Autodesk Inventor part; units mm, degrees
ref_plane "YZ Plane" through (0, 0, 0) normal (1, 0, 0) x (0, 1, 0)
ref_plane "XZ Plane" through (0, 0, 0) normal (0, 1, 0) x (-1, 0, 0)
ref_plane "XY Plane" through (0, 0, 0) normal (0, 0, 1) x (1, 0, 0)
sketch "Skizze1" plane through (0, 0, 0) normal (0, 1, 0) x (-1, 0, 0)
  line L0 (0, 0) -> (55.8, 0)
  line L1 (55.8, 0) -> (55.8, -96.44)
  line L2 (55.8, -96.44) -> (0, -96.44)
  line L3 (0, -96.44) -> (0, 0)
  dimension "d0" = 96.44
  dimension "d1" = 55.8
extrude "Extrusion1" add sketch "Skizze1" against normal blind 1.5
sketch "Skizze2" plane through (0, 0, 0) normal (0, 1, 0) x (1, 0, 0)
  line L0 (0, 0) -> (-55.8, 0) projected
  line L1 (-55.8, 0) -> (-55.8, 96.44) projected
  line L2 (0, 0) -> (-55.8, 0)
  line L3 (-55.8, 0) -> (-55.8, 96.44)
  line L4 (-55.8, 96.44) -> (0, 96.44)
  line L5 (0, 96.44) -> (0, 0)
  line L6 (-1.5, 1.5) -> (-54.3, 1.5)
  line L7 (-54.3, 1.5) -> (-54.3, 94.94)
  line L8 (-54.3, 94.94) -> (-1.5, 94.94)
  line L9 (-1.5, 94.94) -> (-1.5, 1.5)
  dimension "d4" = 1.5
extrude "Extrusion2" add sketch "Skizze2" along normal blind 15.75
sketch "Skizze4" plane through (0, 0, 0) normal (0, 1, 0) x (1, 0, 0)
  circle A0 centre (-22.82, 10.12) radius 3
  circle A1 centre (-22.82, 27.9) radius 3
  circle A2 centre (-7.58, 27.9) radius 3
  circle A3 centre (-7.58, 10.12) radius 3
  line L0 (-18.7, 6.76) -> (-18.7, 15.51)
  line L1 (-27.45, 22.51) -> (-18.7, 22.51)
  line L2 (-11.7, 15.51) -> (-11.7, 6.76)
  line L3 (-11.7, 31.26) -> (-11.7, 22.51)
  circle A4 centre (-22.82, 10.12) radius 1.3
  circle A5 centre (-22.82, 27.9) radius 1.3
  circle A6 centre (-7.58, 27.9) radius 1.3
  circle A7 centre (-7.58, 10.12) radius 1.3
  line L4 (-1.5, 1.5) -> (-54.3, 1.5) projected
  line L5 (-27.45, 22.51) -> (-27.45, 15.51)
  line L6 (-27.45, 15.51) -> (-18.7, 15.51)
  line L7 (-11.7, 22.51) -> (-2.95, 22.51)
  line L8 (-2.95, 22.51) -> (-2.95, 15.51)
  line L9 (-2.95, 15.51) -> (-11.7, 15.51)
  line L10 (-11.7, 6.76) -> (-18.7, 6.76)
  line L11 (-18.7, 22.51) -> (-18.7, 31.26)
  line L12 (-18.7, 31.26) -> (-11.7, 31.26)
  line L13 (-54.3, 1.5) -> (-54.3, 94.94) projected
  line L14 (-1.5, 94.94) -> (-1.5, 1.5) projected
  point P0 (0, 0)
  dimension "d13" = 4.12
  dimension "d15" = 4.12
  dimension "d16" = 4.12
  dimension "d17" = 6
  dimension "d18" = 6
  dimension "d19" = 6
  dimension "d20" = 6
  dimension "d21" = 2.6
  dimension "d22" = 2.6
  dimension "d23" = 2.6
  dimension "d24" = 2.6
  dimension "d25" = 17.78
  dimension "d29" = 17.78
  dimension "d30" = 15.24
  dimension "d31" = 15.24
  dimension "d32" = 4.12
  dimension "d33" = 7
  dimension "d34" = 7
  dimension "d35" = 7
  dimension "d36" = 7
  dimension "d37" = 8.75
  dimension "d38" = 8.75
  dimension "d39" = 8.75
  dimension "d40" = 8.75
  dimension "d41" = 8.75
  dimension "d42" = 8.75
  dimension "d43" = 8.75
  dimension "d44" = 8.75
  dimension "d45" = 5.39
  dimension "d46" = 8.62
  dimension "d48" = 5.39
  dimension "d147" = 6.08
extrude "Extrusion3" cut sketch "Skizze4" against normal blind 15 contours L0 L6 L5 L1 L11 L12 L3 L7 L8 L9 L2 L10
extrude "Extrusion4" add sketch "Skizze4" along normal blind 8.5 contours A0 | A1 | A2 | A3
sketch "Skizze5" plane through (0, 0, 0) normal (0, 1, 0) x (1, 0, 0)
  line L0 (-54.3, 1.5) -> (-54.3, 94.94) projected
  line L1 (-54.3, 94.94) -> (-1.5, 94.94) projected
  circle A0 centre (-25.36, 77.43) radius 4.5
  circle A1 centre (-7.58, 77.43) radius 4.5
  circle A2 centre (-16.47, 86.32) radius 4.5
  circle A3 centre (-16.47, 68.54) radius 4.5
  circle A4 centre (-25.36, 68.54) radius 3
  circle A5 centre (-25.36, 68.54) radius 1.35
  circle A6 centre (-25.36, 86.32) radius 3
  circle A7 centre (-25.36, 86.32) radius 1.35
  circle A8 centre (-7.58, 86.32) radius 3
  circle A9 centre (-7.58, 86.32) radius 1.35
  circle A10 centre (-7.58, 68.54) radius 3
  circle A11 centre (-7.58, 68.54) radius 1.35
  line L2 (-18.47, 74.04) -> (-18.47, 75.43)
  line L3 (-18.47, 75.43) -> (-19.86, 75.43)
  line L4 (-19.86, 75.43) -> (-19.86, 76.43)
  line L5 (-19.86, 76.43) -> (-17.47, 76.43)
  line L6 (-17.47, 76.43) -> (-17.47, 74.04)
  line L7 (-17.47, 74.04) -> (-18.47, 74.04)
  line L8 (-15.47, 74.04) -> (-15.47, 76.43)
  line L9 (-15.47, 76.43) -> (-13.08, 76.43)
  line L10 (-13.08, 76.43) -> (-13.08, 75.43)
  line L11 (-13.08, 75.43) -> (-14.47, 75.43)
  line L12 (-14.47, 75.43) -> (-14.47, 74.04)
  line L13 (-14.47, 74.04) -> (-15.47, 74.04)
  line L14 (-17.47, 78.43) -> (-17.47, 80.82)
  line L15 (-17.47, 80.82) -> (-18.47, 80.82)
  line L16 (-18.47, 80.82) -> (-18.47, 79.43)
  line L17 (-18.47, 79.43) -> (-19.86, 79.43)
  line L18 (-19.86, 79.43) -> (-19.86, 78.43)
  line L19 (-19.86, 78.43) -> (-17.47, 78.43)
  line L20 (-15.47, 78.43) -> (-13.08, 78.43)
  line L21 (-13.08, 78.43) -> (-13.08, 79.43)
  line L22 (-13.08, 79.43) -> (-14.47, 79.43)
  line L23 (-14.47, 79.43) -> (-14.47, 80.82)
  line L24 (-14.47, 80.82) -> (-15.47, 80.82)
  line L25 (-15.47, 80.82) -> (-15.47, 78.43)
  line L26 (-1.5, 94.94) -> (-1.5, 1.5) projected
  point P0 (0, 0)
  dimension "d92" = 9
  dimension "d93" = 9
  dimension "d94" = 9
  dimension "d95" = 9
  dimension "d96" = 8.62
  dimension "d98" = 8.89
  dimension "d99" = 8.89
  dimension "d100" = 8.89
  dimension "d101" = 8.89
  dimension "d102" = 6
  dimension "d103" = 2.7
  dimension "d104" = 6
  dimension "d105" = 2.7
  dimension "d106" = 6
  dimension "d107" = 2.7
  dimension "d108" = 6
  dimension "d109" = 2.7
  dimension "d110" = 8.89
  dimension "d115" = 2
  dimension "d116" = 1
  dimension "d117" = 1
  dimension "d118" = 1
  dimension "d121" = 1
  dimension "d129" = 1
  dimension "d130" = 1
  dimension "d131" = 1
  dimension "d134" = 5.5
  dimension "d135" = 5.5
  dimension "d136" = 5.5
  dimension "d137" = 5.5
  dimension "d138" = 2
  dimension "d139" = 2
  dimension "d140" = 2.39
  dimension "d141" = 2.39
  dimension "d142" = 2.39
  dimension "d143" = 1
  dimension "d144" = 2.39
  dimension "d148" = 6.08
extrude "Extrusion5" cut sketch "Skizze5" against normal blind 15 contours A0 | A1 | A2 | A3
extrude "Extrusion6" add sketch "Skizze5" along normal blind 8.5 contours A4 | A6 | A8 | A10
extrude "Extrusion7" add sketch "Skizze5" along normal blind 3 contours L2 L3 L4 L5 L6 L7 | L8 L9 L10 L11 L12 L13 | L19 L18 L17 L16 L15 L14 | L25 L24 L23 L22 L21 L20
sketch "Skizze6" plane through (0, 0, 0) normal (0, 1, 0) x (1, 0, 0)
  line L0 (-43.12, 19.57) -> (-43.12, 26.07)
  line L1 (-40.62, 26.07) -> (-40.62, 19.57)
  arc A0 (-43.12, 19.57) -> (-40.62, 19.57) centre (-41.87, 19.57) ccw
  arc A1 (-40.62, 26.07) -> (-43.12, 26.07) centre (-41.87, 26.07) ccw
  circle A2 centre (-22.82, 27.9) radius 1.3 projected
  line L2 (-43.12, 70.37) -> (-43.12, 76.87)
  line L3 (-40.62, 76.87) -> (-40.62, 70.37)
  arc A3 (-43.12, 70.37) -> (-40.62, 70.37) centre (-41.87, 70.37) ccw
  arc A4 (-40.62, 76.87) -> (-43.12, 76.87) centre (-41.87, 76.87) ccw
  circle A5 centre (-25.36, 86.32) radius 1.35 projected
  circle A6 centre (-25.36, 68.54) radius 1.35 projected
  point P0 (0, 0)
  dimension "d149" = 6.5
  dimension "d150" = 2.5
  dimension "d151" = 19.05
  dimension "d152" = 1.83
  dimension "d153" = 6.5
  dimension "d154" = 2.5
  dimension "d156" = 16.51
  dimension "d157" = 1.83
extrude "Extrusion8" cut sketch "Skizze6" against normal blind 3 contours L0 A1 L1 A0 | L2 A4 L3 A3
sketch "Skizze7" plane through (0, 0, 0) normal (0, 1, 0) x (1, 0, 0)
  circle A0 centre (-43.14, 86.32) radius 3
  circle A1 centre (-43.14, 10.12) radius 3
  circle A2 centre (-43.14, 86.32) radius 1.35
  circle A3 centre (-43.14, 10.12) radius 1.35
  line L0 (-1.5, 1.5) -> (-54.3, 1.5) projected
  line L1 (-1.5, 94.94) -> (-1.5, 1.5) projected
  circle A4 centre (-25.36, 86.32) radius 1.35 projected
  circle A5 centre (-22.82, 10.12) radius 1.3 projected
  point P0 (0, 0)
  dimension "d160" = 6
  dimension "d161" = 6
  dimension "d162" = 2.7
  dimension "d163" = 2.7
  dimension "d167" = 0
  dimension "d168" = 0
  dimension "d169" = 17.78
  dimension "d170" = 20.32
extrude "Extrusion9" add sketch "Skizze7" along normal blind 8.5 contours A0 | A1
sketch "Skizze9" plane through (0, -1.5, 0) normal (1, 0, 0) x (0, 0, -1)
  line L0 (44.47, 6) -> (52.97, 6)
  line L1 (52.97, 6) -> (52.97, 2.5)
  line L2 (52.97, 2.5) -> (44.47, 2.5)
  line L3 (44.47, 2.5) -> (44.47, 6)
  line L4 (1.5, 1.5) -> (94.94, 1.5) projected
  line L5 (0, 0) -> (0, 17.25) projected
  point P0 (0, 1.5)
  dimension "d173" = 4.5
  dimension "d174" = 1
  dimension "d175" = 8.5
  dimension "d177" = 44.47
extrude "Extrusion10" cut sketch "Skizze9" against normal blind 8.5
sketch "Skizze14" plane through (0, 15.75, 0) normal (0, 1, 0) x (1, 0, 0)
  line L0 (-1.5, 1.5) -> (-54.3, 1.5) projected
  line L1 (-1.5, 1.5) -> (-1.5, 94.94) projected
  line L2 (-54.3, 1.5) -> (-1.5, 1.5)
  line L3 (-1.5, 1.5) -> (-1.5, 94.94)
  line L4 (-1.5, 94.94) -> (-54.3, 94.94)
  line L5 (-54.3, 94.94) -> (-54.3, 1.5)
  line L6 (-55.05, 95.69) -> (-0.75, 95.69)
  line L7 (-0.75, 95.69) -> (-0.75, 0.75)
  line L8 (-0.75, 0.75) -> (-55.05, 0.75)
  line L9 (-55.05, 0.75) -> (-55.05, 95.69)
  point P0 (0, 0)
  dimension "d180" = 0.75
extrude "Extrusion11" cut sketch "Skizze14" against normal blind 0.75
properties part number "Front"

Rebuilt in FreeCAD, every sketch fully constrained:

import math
import FreeCAD as App
import Part
import Sketcher
from FreeCAD import Vector


def add_polygon(sketch, points):
    """Adds a closed chain of lines whose ends are joined by coincident constraints."""
    first, n = sketch.GeometryCount, len(points)
    for a, b in zip(points, points[1:] + points[:1]):
        sketch.addGeometry(Part.LineSegment(App.Vector(*a, 0), App.Vector(*b, 0)), False)
    for i in range(n):
        sketch.addConstraint(Sketcher.Constraint("Coincident", first + i, 2, first + (i + 1) % n, 1))

doc = App.newDocument("Part")
params = doc.addObject("Spreadsheet::Sheet", "Params")
for row, (alias, value) in enumerate([
    ("sketch1_width", "55.8 mm"),
    ("sketch1_height", "96.44 mm"),
    ("pad1_length", "1.5 mm"),
    ("sketch2_width", "55.8 mm"),
    ("sketch2_height", "96.44 mm"),
    ("pad2_length", "15.75 mm"),
    ("sketch3_width", "7 mm"),
    ("sketch3_width2", "8.75 mm"),
    ("pocket1_length", "15 mm"),
    ("sketch4_diameter", "6 mm"),
    ("sketch4_diameter2", "2.6 mm"),
    ("pad3_length", "8.5 mm"),
    ("sketch5_diameter", "9 mm"),
    ("pocket2_length", "15 mm"),
    ("sketch6_diameter", "6 mm"),
    ("sketch6_diameter2", "2.7 mm"),
    ("pad4_length", "8.5 mm"),
    ("sketch7_width", "1 mm"),
    ("sketch7_width2", "2.39 mm"),
    ("pad5_length", "3 mm"),
    ("sketch8_radius", "1.25 mm"),
    ("sketch8_height", "6.5 mm"),
    ("pocket3_length", "3 mm"),
    ("sketch9_diameter", "6 mm"),
    ("sketch9_diameter2", "2.7 mm"),
    ("pad6_length", "8.5 mm"),
    ("sketch10_height", "8.5 mm"),
    ("pocket4_length", "8.5 mm"),
    ("sketch11_width", "54.3 mm"),
    ("sketch11_height", "94.94 mm"),
    ("pocket5_length", "0.75 mm"),
], start=1):
    params.set(f"A{row}", alias)
    params.set(f"B{row}", "=" + value)
    params.setAlias(f"B{row}", alias)

body = doc.addObject("PartDesign::Body", "Body")

# Sketch on XZ plane
sketch1 = doc.addObject("Sketcher::SketchObject", "Sketch")
body.addObject(sketch1)
sketch1.AttachmentSupport = (doc.XZ_Plane, [""])
sketch1.MapMode = "FlatFace"
add_polygon(sketch1, [(-56, 0), (0, 0), (0, -96), (-56, -96)])  # lines 0-3
sketch1.addConstraint(Sketcher.Constraint("Horizontal", 0))
sketch1.addConstraint(Sketcher.Constraint("Vertical", 1))
sketch1.addConstraint(Sketcher.Constraint("Horizontal", 2))
sketch1.addConstraint(Sketcher.Constraint("Vertical", 3))
sketch1.addConstraint(Sketcher.Constraint("Coincident", 0, 2, -1, 1))
sketch1.addConstraint(Sketcher.Constraint("DistanceX", 0, 1, 0, 2, 55.8))
sketch1.addConstraint(Sketcher.Constraint("DistanceY", 1, 2, 1, 1, 96.44))
sketch1.setExpression("Constraints[9]", "Params.sketch1_width")
sketch1.setExpression("Constraints[10]", "Params.sketch1_height")
pad1 = doc.addObject("PartDesign::Pad", "Pad")
body.addObject(pad1)
pad1.Profile = sketch1
pad1.setExpression("Length", "Params.pad1_length")

# Sketch on XZ plane
sketch2 = doc.addObject("Sketcher::SketchObject", "Sketch001")
body.addObject(sketch2)
sketch2.AttachmentSupport = (doc.XZ_Plane, [""])
sketch2.MapMode = "FlatFace"
add_polygon(sketch2, [(-56, 0), (0, 0), (0, -96), (-56, -96)])  # lines 0-3
add_polygon(sketch2, [(-2, -95), (-2, -2), (-54, -2), (-54, -95)])  # lines 4-7
sketch2.addConstraint(Sketcher.Constraint("Horizontal", 0))
sketch2.addConstraint(Sketcher.Constraint("Vertical", 1))
sketch2.addConstraint(Sketcher.Constraint("Horizontal", 2))
sketch2.addConstraint(Sketcher.Constraint("Vertical", 3))
sketch2.addConstraint(Sketcher.Constraint("Vertical", 4))
sketch2.addConstraint(Sketcher.Constraint("Horizontal", 5))
sketch2.addConstraint(Sketcher.Constraint("Vertical", 6))
sketch2.addConstraint(Sketcher.Constraint("Horizontal", 7))
sketch2.addConstraint(Sketcher.Constraint("Coincident", 0, 2, -1, 1))
sketch2.addConstraint(Sketcher.Constraint("DistanceX", 4, 2, -1, 1, 1.5))
sketch2.addConstraint(Sketcher.Constraint("DistanceY", 4, 2, -1, 1, 1.5))
sketch2.addConstraint(Sketcher.Constraint("DistanceX", 3, 2, 5, 2, 1.5))
sketch2.addConstraint(Sketcher.Constraint("DistanceY", 2, 2, 6, 2, 1.5))
sketch2.addConstraint(Sketcher.Constraint("DistanceX", 0, 1, 0, 2, 55.8))
sketch2.addConstraint(Sketcher.Constraint("DistanceY", 1, 2, 1, 1, 96.44))
sketch2.setExpression("Constraints[21]", "Params.sketch2_width")
sketch2.setExpression("Constraints[22]", "Params.sketch2_height")
pad2 = doc.addObject("PartDesign::Pad", "Pad001")
body.addObject(pad2)
pad2.Profile = sketch2
pad2.setExpression("Length", "Params.pad2_length")
pad2.Reversed = True

# Sketch on XZ plane
sketch3 = doc.addObject("Sketcher::SketchObject", "Sketch002")
body.addObject(sketch3)
sketch3.AttachmentSupport = (doc.XZ_Plane, [""])
sketch3.MapMode = "FlatFace"
add_polygon(sketch3, [(-19, -16), (-19, -7), (-12, -7), (-12, -16), (-3, -16), (-3, -23), (-12, -23), (-12, -31), (-19, -31), (-19, -23), (-27, -23), (-27, -16)])  # lines 0-11
sketch3.addConstraint(Sketcher.Constraint("Vertical", 0))
sketch3.addConstraint(Sketcher.Constraint("Horizontal", 1))
sketch3.addConstraint(Sketcher.Constraint("Vertical", 2))
sketch3.addConstraint(Sketcher.Constraint("Horizontal", 3))
sketch3.addConstraint(Sketcher.Constraint("Vertical", 4))
sketch3.addConstraint(Sketcher.Constraint("Horizontal", 5))
sketch3.addConstraint(Sketcher.Constraint("Vertical", 6))
sketch3.addConstraint(Sketcher.Constraint("Horizontal", 7))
sketch3.addConstraint(Sketcher.Constraint("Vertical", 8))
sketch3.addConstraint(Sketcher.Constraint("Horizontal", 9))
sketch3.addConstraint(Sketcher.Constraint("Vertical", 10))
sketch3.addConstraint(Sketcher.Constraint("Horizontal", 11))
sketch3.addConstraint(Sketcher.Constraint("Horizontal", 5, 2, 8, 2))
sketch3.addConstraint(Sketcher.Constraint("Horizontal", 3, 2, 10, 2))
sketch3.addConstraint(Sketcher.Constraint("Vertical", 2, 2, 5, 2))
sketch3.addConstraint(Sketcher.Constraint("Vertical", 0, 2, 7, 2))
sketch3.addConstraint(Sketcher.Constraint("Equal", 5, 9))
sketch3.addConstraint(Sketcher.Constraint("Equal", 11, 0))
sketch3.addConstraint(Sketcher.Constraint("Equal", 7, 4))
sketch3.addConstraint(Sketcher.Constraint("Equal", 2, 6))
sketch3.addConstraint(Sketcher.Constraint("DistanceX", 1, 1, 1, 2, 7.0))
sketch3.addConstraint(Sketcher.Constraint("DistanceX", 3, 1, 3, 2, 8.75))
sketch3.addConstraint(Sketcher.Constraint("DistanceX", 0, 2, -1, 1, 18.7))
sketch3.addConstraint(Sketcher.Constraint("DistanceY", 0, 2, -1, 1, 6.76))
sketch3.setExpression("Constraints[32]", "Params.sketch3_width")
sketch3.setExpression("Constraints[33]", "Params.sketch3_width2")
pocket1 = doc.addObject("PartDesign::Pocket", "Pocket")
body.addObject(pocket1)
pocket1.Profile = sketch3
pocket1.setExpression("Length", "Params.pocket1_length")
pocket1.Reversed = True

# Sketch on XZ plane
sketch4 = doc.addObject("Sketcher::SketchObject", "Sketch003")
body.addObject(sketch4)
sketch4.AttachmentSupport = (doc.XZ_Plane, [""])
sketch4.MapMode = "FlatFace"
sketch4.addGeometry(Part.Circle(Vector(-22.8, -10.1, 0), Vector(0, 0, 1), 3), False)
sketch4.addGeometry(Part.Circle(Vector(-22.8, -10.1, 0), Vector(0, 0, 1), 1.3), False)
sketch4.addGeometry(Part.Circle(Vector(-22.8, -27.9, 0), Vector(0, 0, 1), 3), False)
sketch4.addGeometry(Part.Circle(Vector(-22.8, -27.9, 0), Vector(0, 0, 1), 1.3), False)
sketch4.addGeometry(Part.Circle(Vector(-7.6, -27.9, 0), Vector(0, 0, 1), 3), False)
sketch4.addGeometry(Part.Circle(Vector(-7.6, -27.9, 0), Vector(0, 0, 1), 1.3), False)
sketch4.addGeometry(Part.Circle(Vector(-7.6, -10.1, 0), Vector(0, 0, 1), 3), False)
sketch4.addGeometry(Part.Circle(Vector(-7.6, -10.1, 0), Vector(0, 0, 1), 1.3), False)
sketch4.addConstraint(Sketcher.Constraint("Coincident", 1, 3, 0, 3))
sketch4.addConstraint(Sketcher.Constraint("Coincident", 3, 3, 2, 3))
sketch4.addConstraint(Sketcher.Constraint("Coincident", 5, 3, 4, 3))
sketch4.addConstraint(Sketcher.Constraint("Coincident", 7, 3, 6, 3))
sketch4.addConstraint(Sketcher.Constraint("Equal", 0, 2))
sketch4.addConstraint(Sketcher.Constraint("Equal", 1, 3))
sketch4.addConstraint(Sketcher.Constraint("Equal", 2, 4))
sketch4.addConstraint(Sketcher.Constraint("Equal", 3, 5))
sketch4.addConstraint(Sketcher.Constraint("Equal", 4, 6))
sketch4.addConstraint(Sketcher.Constraint("Equal", 5, 7))
sketch4.addConstraint(Sketcher.Constraint("Horizontal", 3, 3, 4, 3))
sketch4.addConstraint(Sketcher.Constraint("Horizontal", 1, 3, 6, 3))
sketch4.addConstraint(Sketcher.Constraint("Vertical", 1, 3, 2, 3))
sketch4.addConstraint(Sketcher.Constraint("Vertical", 5, 3, 6, 3))
sketch4.addConstraint(Sketcher.Constraint("Diameter", 0, 6.0))
sketch4.addConstraint(Sketcher.Constraint("Diameter", 1, 2.6))
sketch4.addConstraint(Sketcher.Constraint("DistanceY", 2, 3, 0, 3, 17.78))
sketch4.addConstraint(Sketcher.Constraint("DistanceX", 2, 3, 4, 3, 15.24))
sketch4.addConstraint(Sketcher.Constraint("DistanceY", 2, 3, -1, 1, 27.9))
sketch4.addConstraint(Sketcher.Constraint("DistanceX", 0, 3, -1, 1, 22.82))
sketch4.setExpression("Constraints[14]", "Params.sketch4_diameter")
sketch4.setExpression("Constraints[15]", "Params.sketch4_diameter2")
pad3 = doc.addObject("PartDesign::Pad", "Pad002")
body.addObject(pad3)
pad3.Profile = sketch4
pad3.setExpression("Length", "Params.pad3_length")
pad3.Reversed = True

# Sketch on XZ plane
sketch5 = doc.addObject("Sketcher::SketchObject", "Sketch004")
body.addObject(sketch5)
sketch5.AttachmentSupport = (doc.XZ_Plane, [""])
sketch5.MapMode = "FlatFace"
sketch5.addGeometry(Part.Circle(Vector(-25.4, -77.4, 0), Vector(0, 0, 1), 4.5), False)
sketch5.addGeometry(Part.Circle(Vector(-7.6, -77.4, 0), Vector(0, 0, 1), 4.5), False)
sketch5.addGeometry(Part.Circle(Vector(-16.5, -86.3, 0), Vector(0, 0, 1), 4.5), False)
sketch5.addGeometry(Part.Circle(Vector(-16.5, -68.5, 0), Vector(0, 0, 1), 4.5), False)
sketch5.addConstraint(Sketcher.Constraint("Equal", 0, 1))
sketch5.addConstraint(Sketcher.Constraint("Equal", 1, 2))
sketch5.addConstraint(Sketcher.Constraint("Equal", 2, 3))
sketch5.addConstraint(Sketcher.Constraint("Horizontal", 0, 3, 1, 3))
sketch5.addConstraint(Sketcher.Constraint("Vertical", 2, 3, 3, 3))
sketch5.addConstraint(Sketcher.Constraint("Diameter", 0, 9.0))
sketch5.addConstraint(Sketcher.Constraint("DistanceX", 2, 3, 1, 3, 8.89))
sketch5.addConstraint(Sketcher.Constraint("DistanceY", 2, 3, 1, 3, 8.89))
sketch5.addConstraint(Sketcher.Constraint("DistanceX", 0, 3, 2, 3, 8.89))
sketch5.addConstraint(Sketcher.Constraint("DistanceY", 0, 3, 3, 3, 8.89))
sketch5.addConstraint(Sketcher.Constraint("DistanceX", 0, 3, -1, 1, 25.36))
sketch5.addConstraint(Sketcher.Constraint("DistanceY", 0, 3, -1, 1, 77.43))
sketch5.setExpression("Constraints[5]", "Params.sketch5_diameter")
pocket2 = doc.addObject("PartDesign::Pocket", "Pocket001")
body.addObject(pocket2)
pocket2.Profile = sketch5
pocket2.setExpression("Length", "Params.pocket2_length")
pocket2.Reversed = True

# Sketch on XZ plane
sketch6 = doc.addObject("Sketcher::SketchObject", "Sketch005")
body.addObject(sketch6)
sketch6.AttachmentSupport = (doc.XZ_Plane, [""])
sketch6.MapMode = "FlatFace"
sketch6.addGeometry(Part.Circle(Vector(-25.4, -68.5, 0), Vector(0, 0, 1), 3), False)
sketch6.addGeometry(Part.Circle(Vector(-25.4, -68.5, 0), Vector(0, 0, 1), 1.4), False)
sketch6.addGeometry(Part.Circle(Vector(-25.4, -86.3, 0), Vector(0, 0, 1), 3), False)
sketch6.addGeometry(Part.Circle(Vector(-25.4, -86.3, 0), Vector(0, 0, 1), 1.4), False)
sketch6.addGeometry(Part.Circle(Vector(-7.6, -86.3, 0), Vector(0, 0, 1), 3), False)
sketch6.addGeometry(Part.Circle(Vector(-7.6, -86.3, 0), Vector(0, 0, 1), 1.4), False)
sketch6.addGeometry(Part.Circle(Vector(-7.6, -68.5, 0), Vector(0, 0, 1), 3), False)
sketch6.addGeometry(Part.Circle(Vector(-7.6, -68.5, 0), Vector(0, 0, 1), 1.4), False)
sketch6.addConstraint(Sketcher.Constraint("Coincident", 1, 3, 0, 3))
sketch6.addConstraint(Sketcher.Constraint("Coincident", 3, 3, 2, 3))
sketch6.addConstraint(Sketcher.Constraint("Coincident", 5, 3, 4, 3))
sketch6.addConstraint(Sketcher.Constraint("Coincident", 7, 3, 6, 3))
sketch6.addConstraint(Sketcher.Constraint("Equal", 0, 2))
sketch6.addConstraint(Sketcher.Constraint("Equal", 1, 3))
sketch6.addConstraint(Sketcher.Constraint("Equal", 2, 4))
sketch6.addConstraint(Sketcher.Constraint("Equal", 3, 5))
sketch6.addConstraint(Sketcher.Constraint("Equal", 4, 6))
sketch6.addConstraint(Sketcher.Constraint("Equal", 5, 7))
sketch6.addConstraint(Sketcher.Constraint("Horizontal", 3, 3, 4, 3))
sketch6.addConstraint(Sketcher.Constraint("Horizontal", 1, 3, 6, 3))
sketch6.addConstraint(Sketcher.Constraint("Vertical", 1, 3, 2, 3))
sketch6.addConstraint(Sketcher.Constraint("Vertical", 5, 3, 6, 3))
sketch6.addConstraint(Sketcher.Constraint("Diameter", 0, 6.0))
sketch6.addConstraint(Sketcher.Constraint("Diameter", 1, 2.7))
sketch6.addConstraint(Sketcher.Constraint("DistanceX", 0, 3, -1, 1, 25.36))
sketch6.addConstraint(Sketcher.Constraint("DistanceY", 0, 3, -1, 1, 68.54))
sketch6.addConstraint(Sketcher.Constraint("DistanceY", 2, 3, -1, 1, 86.32))
sketch6.addConstraint(Sketcher.Constraint("DistanceX", 4, 3, -1, 1, 7.58))
sketch6.setExpression("Constraints[14]", "Params.sketch6_diameter")
sketch6.setExpression("Constraints[15]", "Params.sketch6_diameter2")
pad4 = doc.addObject("PartDesign::Pad", "Pad003")
body.addObject(pad4)
pad4.Profile = sketch6
pad4.setExpression("Length", "Params.pad4_length")
pad4.Reversed = True

# Sketch on XZ plane
sketch7 = doc.addObject("Sketcher::SketchObject", "Sketch006")
body.addObject(sketch7)
sketch7.AttachmentSupport = (doc.XZ_Plane, [""])
sketch7.MapMode = "FlatFace"
add_polygon(sketch7, [(-18.5, -75.4), (-18.5, -74), (-17.5, -74), (-17.5, -76.4), (-19.9, -76.4), (-19.9, -75.4)])  # lines 0-5
add_polygon(sketch7, [(-15.5, -76.4), (-15.5, -74), (-14.5, -74), (-14.5, -75.4), (-13.1, -75.4), (-13.1, -76.4)])  # lines 6-11
add_polygon(sketch7, [(-19.9, -78.4), (-17.5, -78.4), (-17.5, -80.8), (-18.5, -80.8), (-18.5, -79.4), (-19.9, -79.4)])  # lines 12-17
add_polygon(sketch7, [(-15.5, -80.8), (-15.5, -78.4), (-13.1, -78.4), (-13.1, -79.4), (-14.5, -79.4), (-14.5, -80.8)])  # lines 18-23
sketch7.addConstraint(Sketcher.Constraint("Vertical", 0))
sketch7.addConstraint(Sketcher.Constraint("Horizontal", 1))
sketch7.addConstraint(Sketcher.Constraint("Vertical", 2))
sketch7.addConstraint(Sketcher.Constraint("Horizontal", 3))
sketch7.addConstraint(Sketcher.Constraint("Vertical", 4))
sketch7.addConstraint(Sketcher.Constraint("Horizontal", 5))
sketch7.addConstraint(Sketcher.Constraint("Vertical", 6))
sketch7.addConstraint(Sketcher.Constraint("Horizontal", 7))
sketch7.addConstraint(Sketcher.Constraint("Vertical", 8))
sketch7.addConstraint(Sketcher.Constraint("Horizontal", 9))
sketch7.addConstraint(Sketcher.Constraint("Vertical", 10))
sketch7.addConstraint(Sketcher.Constraint("Horizontal", 11))
sketch7.addConstraint(Sketcher.Constraint("Horizontal", 12))
sketch7.addConstraint(Sketcher.Constraint("Vertical", 13))
sketch7.addConstraint(Sketcher.Constraint("Horizontal", 14))
sketch7.addConstraint(Sketcher.Constraint("Vertical", 15))
sketch7.addConstraint(Sketcher.Constraint("Horizontal", 16))
sketch7.addConstraint(Sketcher.Constraint("Vertical", 17))
sketch7.addConstraint(Sketcher.Constraint("Vertical", 18))
sketch7.addConstraint(Sketcher.Constraint("Horizontal", 19))
sketch7.addConstraint(Sketcher.Constraint("Vertical", 20))
sketch7.addConstraint(Sketcher.Constraint("Horizontal", 21))
sketch7.addConstraint(Sketcher.Constraint("Vertical", 22))
sketch7.addConstraint(Sketcher.Constraint("Horizontal", 23))
sketch7.addConstraint(Sketcher.Constraint("Horizontal", 1, 2, 6, 2))
sketch7.addConstraint(Sketcher.Constraint("Horizontal", 5, 2, 8, 2))
sketch7.addConstraint(Sketcher.Constraint("Horizontal", 3, 2, 10, 2))
sketch7.addConstraint(Sketcher.Constraint("Horizontal", 17, 2, 18, 2))
sketch7.addConstraint(Sketcher.Constraint("Horizontal", 16, 2, 20, 2))
sketch7.addConstraint(Sketcher.Constraint("Horizontal", 14, 2, 22, 2))
sketch7.addConstraint(Sketcher.Constraint("Vertical", 2, 2, 12, 2))
sketch7.addConstraint(Sketcher.Constraint("Vertical", 5, 2, 14, 2))
sketch7.addConstraint(Sketcher.Constraint("Vertical", 4, 2, 16, 2))
sketch7.addConstraint(Sketcher.Constraint("Vertical", 11, 2, 18, 2))
sketch7.addConstraint(Sketcher.Constraint("Vertical", 10, 2, 19, 2))
sketch7.addConstraint(Sketcher.Constraint("Vertical", 8, 2, 21, 2))
sketch7.addConstraint(Sketcher.Constraint("Equal", 1, 7))
sketch7.addConstraint(Sketcher.Constraint("Equal", 5, 9))
sketch7.addConstraint(Sketcher.Constraint("Equal", 21, 0))
sketch7.addConstraint(Sketcher.Constraint("Equal", 19, 2))
sketch7.addConstraint(Sketcher.Constraint("Equal", 6, 13))
sketch7.addConstraint(Sketcher.Constraint("Equal", 8, 15))
sketch7.addConstraint(Sketcher.Constraint("DistanceX", 1, 1, 1, 2, 1.0))
sketch7.addConstraint(Sketcher.Constraint("DistanceX", 1, 2, 6, 2, 2.0))
sketch7.addConstraint(Sketcher.Constraint("DistanceY", 12, 2, 2, 2, 2.0))
sketch7.addConstraint(Sketcher.Constraint("DistanceX", 3, 2, 3, 1, 2.39))
sketch7.addConstraint(Sketcher.Constraint("DistanceX", 0, 2, -1, 1, 18.47))
sketch7.addConstraint(Sketcher.Constraint("DistanceY", 0, 2, -1, 1, 74.04))
sketch7.setExpression("Constraints[66]", "Params.sketch7_width")
sketch7.setExpression("Constraints[69]", "Params.sketch7_width2")
pad5 = doc.addObject("PartDesign::Pad", "Pad004")
body.addObject(pad5)
pad5.Profile = sketch7
pad5.setExpression("Length", "Params.pad5_length")
pad5.Reversed = True

# Sketch on XZ plane
sketch8 = doc.addObject("Sketcher::SketchObject", "Sketch007")
body.addObject(sketch8)
sketch8.AttachmentSupport = (doc.XZ_Plane, [""])
sketch8.MapMode = "FlatFace"
sketch8.addGeometry(Part.LineSegment(Vector(-43.1, -26.1, 0), Vector(-43.1, -19.6, 0)), False)
sketch8.addGeometry(Part.ArcOfCircle(Part.Circle(Vector(-41.9, -19.6, 0), Vector(0, 0, 1), 1.2), math.radians(0), math.radians(180)), False)
sketch8.addGeometry(Part.LineSegment(Vector(-40.6, -19.6, 0), Vector(-40.6, -26.1, 0)), False)
sketch8.addGeometry(Part.ArcOfCircle(Part.Circle(Vector(-41.9, -26.1, 0), Vector(0, 0, 1), 1.2), math.radians(180), math.radians(360)), False)
sketch8.addGeometry(Part.LineSegment(Vector(-43.1, -76.9, 0), Vector(-43.1, -70.4, 0)), False)
sketch8.addGeometry(Part.ArcOfCircle(Part.Circle(Vector(-41.9, -70.4, 0), Vector(0, 0, 1), 1.2), math.radians(0), math.radians(180)), False)
sketch8.addGeometry(Part.LineSegment(Vector(-40.6, -70.4, 0), Vector(-40.6, -76.9, 0)), False)
sketch8.addGeometry(Part.ArcOfCircle(Part.Circle(Vector(-41.9, -76.9, 0), Vector(0, 0, 1), 1.2), math.radians(180), math.radians(360)), False)
sketch8.addConstraint(Sketcher.Constraint("Tangent", 0, 2, 1, 2))
sketch8.addConstraint(Sketcher.Constraint("Tangent", 1, 1, 2, 1))
sketch8.addConstraint(Sketcher.Constraint("Tangent", 2, 2, 3, 2))
sketch8.addConstraint(Sketcher.Constraint("Tangent", 3, 1, 0, 1))
sketch8.addConstraint(Sketcher.Constraint("Tangent", 4, 2, 5, 2))
sketch8.addConstraint(Sketcher.Constraint("Tangent", 5, 1, 6, 1))
sketch8.addConstraint(Sketcher.Constraint("Tangent", 6, 2, 7, 2))
sketch8.addConstraint(Sketcher.Constraint("Tangent", 7, 1, 4, 1))
sketch8.addConstraint(Sketcher.Constraint("Vertical", 0))
sketch8.addConstraint(Sketcher.Constraint("Vertical", 2))
sketch8.addConstraint(Sketcher.Constraint("Vertical", 4))
sketch8.addConstraint(Sketcher.Constraint("Vertical", 6))
sketch8.addConstraint(Sketcher.Constraint("Equal", 3, 5))
sketch8.addConstraint(Sketcher.Constraint("Vertical", 3, 3, 5, 3))
sketch8.addConstraint(Sketcher.Constraint("Equal", 2, 4))
sketch8.addConstraint(Sketcher.Constraint("Radius", 1, 1.25))
sketch8.addConstraint(Sketcher.Constraint("DistanceY", 0, 1, 0, 2, 6.5))
sketch8.addConstraint(Sketcher.Constraint("DistanceY", 5, 3, 3, 3, 44.3))
sketch8.addConstraint(Sketcher.Constraint("DistanceX", 1, 3, -1, 1, 41.87))
sketch8.addConstraint(Sketcher.Constraint("DistanceY", 1, 3, -1, 1, 19.57))
sketch8.setExpression("Constraints[15]", "Params.sketch8_radius")
sketch8.setExpression("Constraints[16]", "Params.sketch8_height")
pocket3 = doc.addObject("PartDesign::Pocket", "Pocket002")
body.addObject(pocket3)
pocket3.Profile = sketch8
pocket3.setExpression("Length", "Params.pocket3_length")
pocket3.Reversed = True

# Sketch on XZ plane
sketch9 = doc.addObject("Sketcher::SketchObject", "Sketch008")
body.addObject(sketch9)
sketch9.AttachmentSupport = (doc.XZ_Plane, [""])
sketch9.MapMode = "FlatFace"
sketch9.addGeometry(Part.Circle(Vector(-43.1, -86.3, 0), Vector(0, 0, 1), 3), False)
sketch9.addGeometry(Part.Circle(Vector(-43.1, -86.3, 0), Vector(0, 0, 1), 1.4), False)
sketch9.addGeometry(Part.Circle(Vector(-43.1, -10.1, 0), Vector(0, 0, 1), 3), False)
sketch9.addGeometry(Part.Circle(Vector(-43.1, -10.1, 0), Vector(0, 0, 1), 1.4), False)
sketch9.addConstraint(Sketcher.Constraint("Coincident", 1, 3, 0, 3))
sketch9.addConstraint(Sketcher.Constraint("Coincident", 3, 3, 2, 3))
sketch9.addConstraint(Sketcher.Constraint("Equal", 0, 2))
sketch9.addConstraint(Sketcher.Constraint("Equal", 1, 3))
sketch9.addConstraint(Sketcher.Constraint("Vertical", 1, 3, 2, 3))
sketch9.addConstraint(Sketcher.Constraint("Diameter", 0, 6.0))
sketch9.addConstraint(Sketcher.Constraint("Diameter", 1, 2.7))
sketch9.addConstraint(Sketcher.Constraint("DistanceY", 0, 3, 2, 3, 76.2))
sketch9.addConstraint(Sketcher.Constraint("DistanceX", 0, 3, -1, 1, 43.14))
sketch9.addConstraint(Sketcher.Constraint("DistanceY", 0, 3, -1, 1, 86.32))
sketch9.setExpression("Constraints[5]", "Params.sketch9_diameter")
sketch9.setExpression("Constraints[6]", "Params.sketch9_diameter2")
pad6 = doc.addObject("PartDesign::Pad", "Pad005")
body.addObject(pad6)
pad6.Profile = sketch9
pad6.setExpression("Length", "Params.pad6_length")
pad6.Reversed = True

# Sketch on YZ plane
sketch10 = doc.addObject("Sketcher::SketchObject", "Sketch009")
body.addObject(sketch10)
sketch10.AttachmentSupport = (doc.YZ_Plane, [""])
sketch10.MapMode = "FlatFace"
add_polygon(sketch10, [(4.5, -53), (4.5, -44.5), (1, -44.5), (1, -53)])  # lines 0-3
sketch10.addConstraint(Sketcher.Constraint("Vertical", 0))
sketch10.addConstraint(Sketcher.Constraint("Horizontal", 1))
sketch10.addConstraint(Sketcher.Constraint("Vertical", 2))
sketch10.addConstraint(Sketcher.Constraint("Horizontal", 3))
sketch10.addConstraint(Sketcher.Constraint("DistanceY", 0, 1, 0, 2, 8.5))
sketch10.addConstraint(Sketcher.Constraint("DistanceX", -1, 1, 1, 2, 1.0))
sketch10.addConstraint(Sketcher.Constraint("DistanceX", -1, 1, 0, 2, 4.5))
sketch10.addConstraint(Sketcher.Constraint("DistanceY", 0, 2, -1, 1, 44.47))
sketch10.setExpression("Constraints[8]", "Params.sketch10_height")
pocket4 = doc.addObject("PartDesign::Pocket", "Pocket003")
body.addObject(pocket4)
pocket4.Profile = sketch10
pocket4.setExpression("Length", "Params.pocket4_length")

# Sketch on XZ plane
sketch11 = doc.addObject("Sketcher::SketchObject", "Sketch010")
body.addObject(sketch11)
sketch11.AttachmentSupport = (doc.XZ_Plane, [""])
sketch11.MapMode = "FlatFace"
sketch11.AttachmentOffset = App.Placement(Vector(0, 0, -15.75), App.Rotation())
add_polygon(sketch11, [(-1, -96), (-55, -96), (-55, -1), (-1, -1)])  # lines 0-3
add_polygon(sketch11, [(-2, -95), (-2, -2), (-54, -2), (-54, -95)])  # lines 4-7
sketch11.addConstraint(Sketcher.Constraint("Horizontal", 0))
sketch11.addConstraint(Sketcher.Constraint("Vertical", 1))
sketch11.addConstraint(Sketcher.Constraint("Horizontal", 2))
sketch11.addConstraint(Sketcher.Constraint("Vertical", 3))
sketch11.addConstraint(Sketcher.Constraint("Vertical", 4))
sketch11.addConstraint(Sketcher.Constraint("Horizontal", 5))
sketch11.addConstraint(Sketcher.Constraint("Vertical", 6))
sketch11.addConstraint(Sketcher.Constraint("Horizontal", 7))
sketch11.addConstraint(Sketcher.Constraint("DistanceY", 1, 2, -1, 1, 0.75))
sketch11.addConstraint(Sketcher.Constraint("DistanceX", 2, 2, -1, 1, 0.75))
sketch11.addConstraint(Sketcher.Constraint("DistanceX", 4, 2, 2, 2, 0.75))
sketch11.addConstraint(Sketcher.Constraint("DistanceY", 4, 2, 2, 2, 0.75))
sketch11.addConstraint(Sketcher.Constraint("DistanceX", 1, 2, 5, 2, 0.75))
sketch11.addConstraint(Sketcher.Constraint("DistanceY", 0, 2, 6, 2, 0.75))
sketch11.addConstraint(Sketcher.Constraint("DistanceX", 0, 2, 0, 1, 54.3))
sketch11.addConstraint(Sketcher.Constraint("DistanceY", 1, 1, 1, 2, 94.94))
sketch11.setExpression("Constraints[22]", "Params.sketch11_width")
sketch11.setExpression("Constraints[23]", "Params.sketch11_height")
pocket5 = doc.addObject("PartDesign::Pocket", "Pocket004")
body.addObject(pocket5)
pocket5.Profile = sketch11
pocket5.setExpression("Length", "Params.pocket5_length")
pocket5.Reversed = True

doc.recompute()
